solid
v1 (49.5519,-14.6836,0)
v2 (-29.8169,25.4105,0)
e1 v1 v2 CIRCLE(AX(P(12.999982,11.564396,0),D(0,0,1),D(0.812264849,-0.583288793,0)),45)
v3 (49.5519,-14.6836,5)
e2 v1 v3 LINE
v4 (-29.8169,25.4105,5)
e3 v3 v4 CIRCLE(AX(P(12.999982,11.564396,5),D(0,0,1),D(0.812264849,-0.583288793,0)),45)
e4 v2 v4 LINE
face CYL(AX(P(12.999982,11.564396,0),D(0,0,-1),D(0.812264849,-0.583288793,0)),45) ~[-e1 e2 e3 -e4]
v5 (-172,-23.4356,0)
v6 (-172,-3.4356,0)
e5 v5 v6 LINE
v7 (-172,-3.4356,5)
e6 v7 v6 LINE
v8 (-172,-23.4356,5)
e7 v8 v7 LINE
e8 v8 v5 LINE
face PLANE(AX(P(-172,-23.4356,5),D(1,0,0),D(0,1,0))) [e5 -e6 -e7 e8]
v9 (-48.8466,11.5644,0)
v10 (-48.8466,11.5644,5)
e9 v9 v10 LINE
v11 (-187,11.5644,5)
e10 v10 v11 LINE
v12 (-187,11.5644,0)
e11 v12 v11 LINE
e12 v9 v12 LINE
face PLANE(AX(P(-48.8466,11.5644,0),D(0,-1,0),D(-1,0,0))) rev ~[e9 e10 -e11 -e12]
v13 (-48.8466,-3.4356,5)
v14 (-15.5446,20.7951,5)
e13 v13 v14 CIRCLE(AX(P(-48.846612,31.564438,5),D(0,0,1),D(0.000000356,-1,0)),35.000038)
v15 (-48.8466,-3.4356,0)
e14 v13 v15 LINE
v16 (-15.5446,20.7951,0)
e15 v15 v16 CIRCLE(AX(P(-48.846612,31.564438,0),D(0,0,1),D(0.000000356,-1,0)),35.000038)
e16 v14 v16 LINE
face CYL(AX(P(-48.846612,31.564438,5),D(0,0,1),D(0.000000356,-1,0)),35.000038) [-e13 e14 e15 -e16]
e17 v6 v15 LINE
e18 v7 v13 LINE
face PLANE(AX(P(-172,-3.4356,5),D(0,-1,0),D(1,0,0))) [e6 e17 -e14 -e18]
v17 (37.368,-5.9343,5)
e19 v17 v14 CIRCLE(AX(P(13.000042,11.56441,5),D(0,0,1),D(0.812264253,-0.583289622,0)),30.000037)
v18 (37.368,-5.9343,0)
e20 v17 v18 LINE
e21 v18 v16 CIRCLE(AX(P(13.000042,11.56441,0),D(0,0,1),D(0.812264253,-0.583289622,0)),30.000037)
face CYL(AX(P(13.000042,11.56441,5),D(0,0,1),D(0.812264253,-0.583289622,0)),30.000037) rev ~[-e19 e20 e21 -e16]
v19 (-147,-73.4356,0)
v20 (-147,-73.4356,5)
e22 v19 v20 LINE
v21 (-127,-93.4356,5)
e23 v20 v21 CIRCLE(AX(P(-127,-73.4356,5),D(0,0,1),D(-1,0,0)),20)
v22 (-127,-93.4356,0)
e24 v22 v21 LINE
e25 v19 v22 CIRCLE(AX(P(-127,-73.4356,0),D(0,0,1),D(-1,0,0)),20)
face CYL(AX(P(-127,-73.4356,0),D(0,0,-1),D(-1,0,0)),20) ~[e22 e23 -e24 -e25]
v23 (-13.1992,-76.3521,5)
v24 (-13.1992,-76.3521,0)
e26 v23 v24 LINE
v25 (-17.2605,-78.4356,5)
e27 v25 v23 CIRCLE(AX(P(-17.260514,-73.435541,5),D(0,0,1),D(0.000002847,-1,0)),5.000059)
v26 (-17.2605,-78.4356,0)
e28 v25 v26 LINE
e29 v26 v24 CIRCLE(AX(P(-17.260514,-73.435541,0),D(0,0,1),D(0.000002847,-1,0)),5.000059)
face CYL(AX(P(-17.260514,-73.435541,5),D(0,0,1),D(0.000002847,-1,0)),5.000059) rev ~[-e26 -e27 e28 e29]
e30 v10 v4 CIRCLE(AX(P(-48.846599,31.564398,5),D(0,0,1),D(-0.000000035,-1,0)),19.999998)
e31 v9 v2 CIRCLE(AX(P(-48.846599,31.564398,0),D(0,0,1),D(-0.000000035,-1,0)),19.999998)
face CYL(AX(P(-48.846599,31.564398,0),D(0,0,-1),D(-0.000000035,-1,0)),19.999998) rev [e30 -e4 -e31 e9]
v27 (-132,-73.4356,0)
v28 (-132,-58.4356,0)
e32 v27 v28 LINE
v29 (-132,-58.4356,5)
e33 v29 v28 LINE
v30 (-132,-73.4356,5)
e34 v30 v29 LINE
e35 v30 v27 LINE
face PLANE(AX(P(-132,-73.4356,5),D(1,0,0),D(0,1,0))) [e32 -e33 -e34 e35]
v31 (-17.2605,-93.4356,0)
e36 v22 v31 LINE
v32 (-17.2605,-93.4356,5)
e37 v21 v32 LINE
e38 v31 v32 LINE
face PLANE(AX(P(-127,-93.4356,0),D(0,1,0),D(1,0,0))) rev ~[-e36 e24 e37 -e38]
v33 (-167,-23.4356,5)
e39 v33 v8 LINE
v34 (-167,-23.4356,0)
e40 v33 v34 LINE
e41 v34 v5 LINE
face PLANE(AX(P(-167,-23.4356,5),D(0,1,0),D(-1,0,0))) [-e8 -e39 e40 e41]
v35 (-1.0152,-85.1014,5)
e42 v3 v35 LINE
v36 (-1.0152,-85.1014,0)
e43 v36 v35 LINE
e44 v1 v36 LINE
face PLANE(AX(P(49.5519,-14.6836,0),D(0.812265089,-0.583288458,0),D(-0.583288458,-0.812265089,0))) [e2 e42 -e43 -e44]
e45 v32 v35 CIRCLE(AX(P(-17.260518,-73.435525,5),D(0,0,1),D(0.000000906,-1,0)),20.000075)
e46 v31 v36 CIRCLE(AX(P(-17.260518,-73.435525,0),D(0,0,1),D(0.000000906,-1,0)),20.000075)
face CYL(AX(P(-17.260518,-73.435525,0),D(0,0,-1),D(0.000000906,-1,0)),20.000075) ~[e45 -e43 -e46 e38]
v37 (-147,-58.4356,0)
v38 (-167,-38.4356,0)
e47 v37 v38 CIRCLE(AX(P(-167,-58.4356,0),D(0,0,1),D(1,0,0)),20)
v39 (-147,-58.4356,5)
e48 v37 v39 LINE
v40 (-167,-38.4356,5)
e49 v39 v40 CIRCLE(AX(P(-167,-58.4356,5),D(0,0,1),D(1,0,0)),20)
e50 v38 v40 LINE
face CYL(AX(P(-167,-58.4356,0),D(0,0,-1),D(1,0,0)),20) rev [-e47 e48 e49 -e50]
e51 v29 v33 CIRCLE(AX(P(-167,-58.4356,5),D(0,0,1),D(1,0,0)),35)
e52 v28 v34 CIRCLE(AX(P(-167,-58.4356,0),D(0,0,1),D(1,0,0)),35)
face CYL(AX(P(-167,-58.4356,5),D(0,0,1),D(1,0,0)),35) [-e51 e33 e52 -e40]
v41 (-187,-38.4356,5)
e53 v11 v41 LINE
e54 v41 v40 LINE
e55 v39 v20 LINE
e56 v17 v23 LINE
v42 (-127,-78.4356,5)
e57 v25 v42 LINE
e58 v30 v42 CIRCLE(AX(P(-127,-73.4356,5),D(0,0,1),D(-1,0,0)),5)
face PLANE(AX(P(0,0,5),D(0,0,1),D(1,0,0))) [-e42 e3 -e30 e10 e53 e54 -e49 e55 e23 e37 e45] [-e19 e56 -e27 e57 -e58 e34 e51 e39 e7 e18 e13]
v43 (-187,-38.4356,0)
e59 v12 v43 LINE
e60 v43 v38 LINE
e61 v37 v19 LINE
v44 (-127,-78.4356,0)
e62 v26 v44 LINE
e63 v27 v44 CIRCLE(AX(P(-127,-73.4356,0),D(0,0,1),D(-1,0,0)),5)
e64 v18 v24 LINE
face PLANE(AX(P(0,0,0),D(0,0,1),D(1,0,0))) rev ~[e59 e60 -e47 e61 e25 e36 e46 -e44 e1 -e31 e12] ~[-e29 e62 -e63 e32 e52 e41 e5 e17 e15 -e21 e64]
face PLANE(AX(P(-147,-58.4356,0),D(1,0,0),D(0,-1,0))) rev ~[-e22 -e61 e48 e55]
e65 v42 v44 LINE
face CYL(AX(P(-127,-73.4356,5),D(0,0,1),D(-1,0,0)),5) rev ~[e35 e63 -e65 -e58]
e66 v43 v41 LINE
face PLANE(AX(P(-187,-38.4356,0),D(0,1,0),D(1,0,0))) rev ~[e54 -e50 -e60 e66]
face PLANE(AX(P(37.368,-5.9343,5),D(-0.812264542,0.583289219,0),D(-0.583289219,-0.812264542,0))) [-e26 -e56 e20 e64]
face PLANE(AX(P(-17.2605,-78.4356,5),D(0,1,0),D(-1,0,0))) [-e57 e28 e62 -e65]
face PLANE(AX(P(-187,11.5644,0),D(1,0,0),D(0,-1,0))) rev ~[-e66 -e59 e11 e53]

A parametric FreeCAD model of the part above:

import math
import FreeCAD as App
import Part
import Sketcher

V = App.Vector
Q = App.Units.Quantity

doc = App.newDocument("Part")
params = doc.addObject("Spreadsheet::Sheet", "Params")
for row, (alias, value) in enumerate([
    ("sketch1_radius", "20 mm"),
    ("sketch1_radius2", "45 mm"),
    ("sketch1_width", "20 mm"),
    ("sketch1_height", "50 mm"),
    ("pad1_length", "5 mm"),
    ("sketch2_height", "15 mm"),
    ("sketch2_radius", "35 mm"),
    ("sketch2_radius2", "5 mm"),
    ("sketch2_radius3", "30 mm"),
    ("sketch2_width", "5 mm"),
], start=1):
    params.set(f"A{row}", alias)
    params.set(f"B{row}", "=" + value)
    params.setAlias(f"B{row}", alias)

body = doc.addObject("PartDesign::Body", "Body")

# Sketch on XY plane
sketch1 = body.newObject("Sketcher::SketchObject", "Sketch")
sketch1.AttachmentSupport = (doc.getObject("XY_Plane"), [""])
sketch1.MapMode = "FlatFace"
sketch1.addGeometry(Part.ArcOfCircle(Part.Circle(V(-49, 32, 0), V(0, 0, 1), 20), math.radians(-90), math.radians(-18)), False)
sketch1.addGeometry(Part.LineSegment(V(-49, 12, 0), V(-187, 12, 0)), False)
sketch1.addGeometry(Part.LineSegment(V(-187, 12, 0), V(-187, -38, 0)), False)
sketch1.addGeometry(Part.LineSegment(V(-187, -38, 0), V(-167, -38, 0)), False)
sketch1.addGeometry(Part.ArcOfCircle(Part.Circle(V(-167, -58, 0), V(0, 0, 1), 20), math.radians(0), math.radians(90)), False)
sketch1.addGeometry(Part.LineSegment(V(-147, -58, 0), V(-147, -73, 0)), False)
sketch1.addGeometry(Part.ArcOfCircle(Part.Circle(V(-127, -73, 0), V(0, 0, 1), 20), math.radians(180), math.radians(270)), False)
sketch1.addGeometry(Part.LineSegment(V(-127, -93, 0), V(-17, -93, 0)), False)
sketch1.addGeometry(Part.ArcOfCircle(Part.Circle(V(-17, -73, 0), V(0, 0, 1), 20), math.radians(-90), math.radians(-36)), False)
sketch1.addGeometry(Part.LineSegment(V(-1, -85, 0), V(50, -15, 0)), False)
sketch1.addGeometry(Part.ArcOfCircle(Part.Circle(V(13, 12, 0), V(0, 0, 1), 45), math.radians(-36), math.radians(162)), False)
sketch1.addConstraint(Sketcher.Constraint("Tangent", 0, 1, 1, 1))
sketch1.addConstraint(Sketcher.Constraint("Coincident", 1, 2, 2, 1))
sketch1.addConstraint(Sketcher.Constraint("Coincident", 2, 2, 3, 1))
sketch1.addConstraint(Sketcher.Constraint("Tangent", 3, 2, 4, 2))
sketch1.addConstraint(Sketcher.Constraint("Tangent", 4, 1, 5, 1))
sketch1.addConstraint(Sketcher.Constraint("Tangent", 5, 2, 6, 1))
sketch1.addConstraint(Sketcher.Constraint("Tangent", 6, 2, 7, 1))
sketch1.addConstraint(Sketcher.Constraint("Tangent", 7, 2, 8, 1))
sketch1.addConstraint(Sketcher.Constraint("Tangent", 8, 2, 9, 1))
sketch1.addConstraint(Sketcher.Constraint("Tangent", 9, 2, 10, 1))
sketch1.addConstraint(Sketcher.Constraint("Tangent", 10, 2, 0, 2))
sketch1.addConstraint(Sketcher.Constraint("Horizontal", 1))
sketch1.addConstraint(Sketcher.Constraint("Vertical", 2))
sketch1.addConstraint(Sketcher.Constraint("Horizontal", 3))
sketch1.addConstraint(Sketcher.Constraint("Vertical", 5))
sketch1.addConstraint(Sketcher.Constraint("Horizontal", 7))
sketch1.addConstraint(Sketcher.Constraint("Equal", 0, 4))
sketch1.addConstraint(Sketcher.Constraint("Equal", 4, 6))
sketch1.addConstraint(Sketcher.Constraint("Equal", 6, 8))
sketch1.addConstraint(Sketcher.Constraint("Horizontal", 10, 3, 0, 1))
sketch1.addConstraint(Sketcher.Constraint("Radius", 0, Q("20 mm")))
sketch1.addConstraint(Sketcher.Constraint("Radius", 10, Q("45 mm")))
sketch1.addConstraint(Sketcher.Constraint("DistanceX", 3, 1, 3, 2, Q("20 mm")))
sketch1.addConstraint(Sketcher.Constraint("DistanceY", 2, 2, 2, 1, Q("50 mm")))
sketch1.addConstraint(Sketcher.Constraint("DistanceY", 6, 3, 0, 3, Q("105 mm")))
sketch1.addConstraint(Sketcher.Constraint("DistanceX", 4, 3, 10, 3, Q("180 mm")))
sketch1.addConstraint(Sketcher.Constraint("DistanceX", 4, 3, -1, 1, Q("167 mm")))
sketch1.addConstraint(Sketcher.Constraint("DistanceX", 7, 1, 7, 2, Q("109.7395 mm")))
sketch1.addConstraint(Sketcher.Constraint("DistanceY", -1, 1, 0, 3, Q("31.5644 mm")))
sketch1.setExpression("Constraints[20]", "Params.sketch1_radius")
sketch1.setExpression("Constraints[21]", "Params.sketch1_radius2")
sketch1.setExpression("Constraints[22]", "Params.sketch1_width")
sketch1.setExpression("Constraints[23]", "Params.sketch1_height")
pad1 = body.newObject("PartDesign::Pad", "Pad")
pad1.Profile = sketch1
pad1.setExpression("Length", "Params.pad1_length")

# Sketch on XY plane
sketch2 = body.newObject("Sketcher::SketchObject", "Sketch001")
sketch2.AttachmentSupport = (doc.getObject("XY_Plane"), [""])
sketch2.MapMode = "FlatFace"
sketch2.AttachmentOffset = App.Placement(V(0, 0, 5), App.Rotation())
sketch2.addGeometry(Part.LineSegment(V(-48.8, -3.4, 0), V(-172, -3.4, 0)), False)
sketch2.addGeometry(Part.LineSegment(V(-172, -3.4, 0), V(-172, -23.4, 0)), False)
sketch2.addGeometry(Part.LineSegment(V(-172, -23.4, 0), V(-167, -23.4, 0)), False)
sketch2.addGeometry(Part.ArcOfCircle(Part.Circle(V(-167, -58.4, 0), V(0, 0, 1), 35), math.radians(0), math.radians(90)), False)
sketch2.addGeometry(Part.LineSegment(V(-132, -58.4, 0), V(-132, -73.4, 0)), False)
sketch2.addGeometry(Part.ArcOfCircle(Part.Circle(V(-127, -73.4, 0), V(0, 0, 1), 5), math.radians(180), math.radians(270)), False)
sketch2.addGeometry(Part.LineSegment(V(-127, -78.4, 0), V(-17.3, -78.4, 0)), False)
sketch2.addGeometry(Part.ArcOfCircle(Part.Circle(V(-17.3, -73.4, 0), V(0, 0, 1), 5), math.radians(-90), math.radians(-36)), False)
sketch2.addGeometry(Part.LineSegment(V(-13.2, -76.4, 0), V(37.4, -5.9, 0)), False)
sketch2.addGeometry(Part.ArcOfCircle(Part.Circle(V(13, 11.6, 0), V(0, 0, 1), 30), math.radians(-36), math.radians(162)), False)
sketch2.addGeometry(Part.ArcOfCircle(Part.Circle(V(-48.8, 31.6, 0), V(0, 0, 1), 35), math.radians(-90), math.radians(-18)), False)
sketch2.addConstraint(Sketcher.Constraint("Coincident", 0, 2, 1, 1))
sketch2.addConstraint(Sketcher.Constraint("Coincident", 1, 2, 2, 1))
sketch2.addConstraint(Sketcher.Constraint("Tangent", 2, 2, 3, 2))
sketch2.addConstraint(Sketcher.Constraint("Tangent", 3, 1, 4, 1))
sketch2.addConstraint(Sketcher.Constraint("Tangent", 4, 2, 5, 1))
sketch2.addConstraint(Sketcher.Constraint("Tangent", 5, 2, 6, 1))
sketch2.addConstraint(Sketcher.Constraint("Tangent", 6, 2, 7, 1))
sketch2.addConstraint(Sketcher.Constraint("Tangent", 7, 2, 8, 1))
sketch2.addConstraint(Sketcher.Constraint("Tangent", 8, 2, 9, 1))
sketch2.addConstraint(Sketcher.Constraint("Tangent", 9, 2, 10, 2))
sketch2.addConstraint(Sketcher.Constraint("Tangent", 10, 1, 0, 1))
sketch2.addConstraint(Sketcher.Constraint("Horizontal", 0))
sketch2.addConstraint(Sketcher.Constraint("Vertical", 1))
sketch2.addConstraint(Sketcher.Constraint("Horizontal", 2))
sketch2.addConstraint(Sketcher.Constraint("Vertical", 4))
sketch2.addConstraint(Sketcher.Constraint("Horizontal", 6))
sketch2.addConstraint(Sketcher.Constraint("Equal", 5, 7))
sketch2.addConstraint(Sketcher.Constraint("Equal", 3, 10))
sketch2.addConstraint(Sketcher.Constraint("DistanceY", 4, 2, 4, 1, Q("15 mm")))
sketch2.addConstraint(Sketcher.Constraint("Radius", 3, Q("35 mm")))
sketch2.addConstraint(Sketcher.Constraint("Radius", 5, Q("5 mm")))
sketch2.addConstraint(Sketcher.Constraint("Radius", 9, Q("30 mm")))
sketch2.addConstraint(Sketcher.Constraint("DistanceY", 0, 2, 9, 3, Q("15 mm")))
sketch2.addConstraint(Sketcher.Constraint("DistanceX", 2, 1, 2, 2, Q("5 mm")))
sketch2.addConstraint(Sketcher.Constraint("DistanceY", 1, 2, 1, 1, Q("20 mm")))
sketch2.addConstraint(Sketcher.Constraint("DistanceX", 3, 3, -1, 1, Q("167 mm")))
sketch2.addConstraint(Sketcher.Constraint("DistanceX", -1, 1, 9, 3, Q("13 mm")))
sketch2.addConstraint(Sketcher.Constraint("DistanceX", 6, 1, 6, 2, Q("109.7395 mm")))
sketch2.addConstraint(Sketcher.Constraint("DistanceY", 7, 2, -1, 1, Q("76.352 mm")))
sketch2.setExpression("Constraints[18]", "Params.sketch2_height")
sketch2.setExpression("Constraints[19]", "Params.sketch2_radius")
sketch2.setExpression("Constraints[20]", "Params.sketch2_radius2")
sketch2.setExpression("Constraints[21]", "Params.sketch2_radius3")
sketch2.setExpression("Constraints[23]", "Params.sketch2_width")
pocket1 = body.newObject("PartDesign::Pocket", "Pocket")
pocket1.Profile = sketch2
pocket1.Type = "ThroughAll"

doc.recompute()
